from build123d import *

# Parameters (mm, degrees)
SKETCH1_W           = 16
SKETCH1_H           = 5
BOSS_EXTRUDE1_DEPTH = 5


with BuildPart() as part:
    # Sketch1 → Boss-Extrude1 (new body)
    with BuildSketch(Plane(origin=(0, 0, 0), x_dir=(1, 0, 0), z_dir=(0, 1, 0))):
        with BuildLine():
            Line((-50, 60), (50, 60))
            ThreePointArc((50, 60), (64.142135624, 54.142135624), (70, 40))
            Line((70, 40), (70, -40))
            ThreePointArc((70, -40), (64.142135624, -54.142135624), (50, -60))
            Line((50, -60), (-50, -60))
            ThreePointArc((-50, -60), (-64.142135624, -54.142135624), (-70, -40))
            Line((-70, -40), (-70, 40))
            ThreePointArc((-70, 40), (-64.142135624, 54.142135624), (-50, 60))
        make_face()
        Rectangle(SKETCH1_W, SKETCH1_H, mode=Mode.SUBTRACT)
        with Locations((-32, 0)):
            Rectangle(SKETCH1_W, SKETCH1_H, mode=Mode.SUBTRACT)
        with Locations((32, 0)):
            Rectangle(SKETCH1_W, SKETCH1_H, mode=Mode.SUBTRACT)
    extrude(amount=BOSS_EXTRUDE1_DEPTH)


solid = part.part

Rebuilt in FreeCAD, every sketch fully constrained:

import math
import FreeCAD as App
import Part
import Sketcher

V = App.Vector


def add_polygon(sketch, points):
    """Adds a closed chain of lines whose ends are joined by coincident constraints."""
    first, n = sketch.GeometryCount, len(points)
    for a, b in zip(points, points[1:] + points[:1]):
        sketch.addGeometry(Part.LineSegment(App.Vector(*a, 0), App.Vector(*b, 0)), False)
    for i in range(n):
        sketch.addConstraint(Sketcher.Constraint("Coincident", first + i, 2, first + (i + 1) % n, 1))

doc = App.newDocument("Part")
params = doc.addObject("Spreadsheet::Sheet", "Params")
for row, (alias, value) in enumerate([
    ("sketch1_radius", "20 mm"),
    ("sketch1_width", "100 mm"),
    ("sketch1_width2", "16 mm"),
    ("sketch1_height", "80 mm"),
    ("sketch1_height2", "5 mm"),
    ("pad1_length", "5 mm"),
], start=1):
    params.set(f"A{row}", alias)
    params.set(f"B{row}", "=" + value)
    params.setAlias(f"B{row}", alias)

body = doc.addObject("PartDesign::Body", "Body")

sketch1 = body.newObject("Sketcher::SketchObject", "Sketch")
sketch1.AttachmentSupport = (doc.getObject("XZ_Plane"), [""])
sketch1.MapMode = "FlatFace"
sketch1.addGeometry(Part.LineSegment(V(50, -60, 0), V(-50, -60, 0)), False)
sketch1.addGeometry(Part.ArcOfCircle(Part.Circle(V(-50, -40, 0), V(0, 0, 1), 20), math.radians(180), math.radians(270)), False)
sketch1.addGeometry(Part.LineSegment(V(-70, -40, 0), V(-70, 40, 0)), False)
sketch1.addGeometry(Part.ArcOfCircle(Part.Circle(V(-50, 40, 0), V(0, 0, 1), 20), math.radians(90), math.radians(180)), False)
sketch1.addGeometry(Part.LineSegment(V(-50, 60, 0), V(50, 60, 0)), False)
sketch1.addGeometry(Part.ArcOfCircle(Part.Circle(V(50, 40, 0), V(0, 0, 1), 20), math.radians(0), math.radians(90)), False)
sketch1.addGeometry(Part.LineSegment(V(70, 40, 0), V(70, -40, 0)), False)
sketch1.addGeometry(Part.ArcOfCircle(Part.Circle(V(50, -40, 0), V(0, 0, 1), 20), math.radians(-90), math.radians(0)), False)
add_polygon(sketch1, [(24, 2), (24, -2), (40, -2), (40, 2)])
add_polygon(sketch1, [(-8, 2), (-8, -2), (8, -2), (8, 2)])
add_polygon(sketch1, [(-40, 2), (-40, -2), (-24, -2), (-24, 2)])
sketch1.addConstraint([
    Sketcher.Constraint("Tangent", 0, 2, 1, 2),
    Sketcher.Constraint("Tangent", 1, 1, 2, 1),
    Sketcher.Constraint("Tangent", 2, 2, 3, 2),
    Sketcher.Constraint("Tangent", 3, 1, 4, 1),
    Sketcher.Constraint("Tangent", 4, 2, 5, 2),
    Sketcher.Constraint("Tangent", 5, 1, 6, 1),
    Sketcher.Constraint("Tangent", 6, 2, 7, 2),
    Sketcher.Constraint("Tangent", 7, 1, 0, 1),
    Sketcher.Constraint("Horizontal", 0),
    Sketcher.Constraint("Vertical", 2),
    Sketcher.Constraint("Horizontal", 4),
    Sketcher.Constraint("Vertical", 6),
    Sketcher.Constraint("Vertical", 8),
    Sketcher.Constraint("Horizontal", 9),
    Sketcher.Constraint("Vertical", 10),
    Sketcher.Constraint("Horizontal", 11),
    Sketcher.Constraint("Vertical", 12),
    Sketcher.Constraint("Horizontal", 13),
    Sketcher.Constraint("Vertical", 14),
    Sketcher.Constraint("Horizontal", 15),
    Sketcher.Constraint("Vertical", 16),
    Sketcher.Constraint("Horizontal", 17),
    Sketcher.Constraint("Vertical", 18),
    Sketcher.Constraint("Horizontal", 19),
    Sketcher.Constraint("Equal", 1, 3),
    Sketcher.Constraint("Equal", 3, 5),
    Sketcher.Constraint("Equal", 5, 7),
    Sketcher.Constraint("Symmetric", 1, 3, 5, 3, -1, 1),
    Sketcher.Constraint("Symmetric", 12, 2, 14, 2, -1, 1),
    Sketcher.Constraint("Symmetric", 10, 2, 16, 2, -1, 1),
    Sketcher.Constraint("Symmetric", 8, 2, 18, 2, -1, 1),
    Sketcher.Constraint("Horizontal", 9, 2, 12, 2),
    Sketcher.Constraint("Horizontal", 11, 2, 14, 2),
    Sketcher.Constraint("Equal", 11, 13),
    Sketcher.Constraint("Radius", 1, 20.0),
    Sketcher.Constraint("DistanceX", 0, 2, 0, 1, 100.0),
    Sketcher.Constraint("DistanceX", 9, 1, 9, 2, 16.0),
    Sketcher.Constraint("DistanceY", 2, 1, 2, 2, 80.0),
    Sketcher.Constraint("DistanceY", 8, 2, 8, 1, 5.0),
    Sketcher.Constraint("DistanceX", -1, 1, 8, 2, 24.0),
])
sketch1.setExpression("Constraints[46]", "Params.sketch1_radius")
sketch1.setExpression("Constraints[47]", "Params.sketch1_width")
sketch1.setExpression("Constraints[48]", "Params.sketch1_width2")
sketch1.setExpression("Constraints[49]", "Params.sketch1_height")
sketch1.setExpression("Constraints[50]", "Params.sketch1_height2")
pad1 = body.newObject("PartDesign::Pad", "Pad")
pad1.Profile = sketch1
pad1.setExpression("Length", "Params.pad1_length")
pad1.Reversed = True

doc.recompute()
